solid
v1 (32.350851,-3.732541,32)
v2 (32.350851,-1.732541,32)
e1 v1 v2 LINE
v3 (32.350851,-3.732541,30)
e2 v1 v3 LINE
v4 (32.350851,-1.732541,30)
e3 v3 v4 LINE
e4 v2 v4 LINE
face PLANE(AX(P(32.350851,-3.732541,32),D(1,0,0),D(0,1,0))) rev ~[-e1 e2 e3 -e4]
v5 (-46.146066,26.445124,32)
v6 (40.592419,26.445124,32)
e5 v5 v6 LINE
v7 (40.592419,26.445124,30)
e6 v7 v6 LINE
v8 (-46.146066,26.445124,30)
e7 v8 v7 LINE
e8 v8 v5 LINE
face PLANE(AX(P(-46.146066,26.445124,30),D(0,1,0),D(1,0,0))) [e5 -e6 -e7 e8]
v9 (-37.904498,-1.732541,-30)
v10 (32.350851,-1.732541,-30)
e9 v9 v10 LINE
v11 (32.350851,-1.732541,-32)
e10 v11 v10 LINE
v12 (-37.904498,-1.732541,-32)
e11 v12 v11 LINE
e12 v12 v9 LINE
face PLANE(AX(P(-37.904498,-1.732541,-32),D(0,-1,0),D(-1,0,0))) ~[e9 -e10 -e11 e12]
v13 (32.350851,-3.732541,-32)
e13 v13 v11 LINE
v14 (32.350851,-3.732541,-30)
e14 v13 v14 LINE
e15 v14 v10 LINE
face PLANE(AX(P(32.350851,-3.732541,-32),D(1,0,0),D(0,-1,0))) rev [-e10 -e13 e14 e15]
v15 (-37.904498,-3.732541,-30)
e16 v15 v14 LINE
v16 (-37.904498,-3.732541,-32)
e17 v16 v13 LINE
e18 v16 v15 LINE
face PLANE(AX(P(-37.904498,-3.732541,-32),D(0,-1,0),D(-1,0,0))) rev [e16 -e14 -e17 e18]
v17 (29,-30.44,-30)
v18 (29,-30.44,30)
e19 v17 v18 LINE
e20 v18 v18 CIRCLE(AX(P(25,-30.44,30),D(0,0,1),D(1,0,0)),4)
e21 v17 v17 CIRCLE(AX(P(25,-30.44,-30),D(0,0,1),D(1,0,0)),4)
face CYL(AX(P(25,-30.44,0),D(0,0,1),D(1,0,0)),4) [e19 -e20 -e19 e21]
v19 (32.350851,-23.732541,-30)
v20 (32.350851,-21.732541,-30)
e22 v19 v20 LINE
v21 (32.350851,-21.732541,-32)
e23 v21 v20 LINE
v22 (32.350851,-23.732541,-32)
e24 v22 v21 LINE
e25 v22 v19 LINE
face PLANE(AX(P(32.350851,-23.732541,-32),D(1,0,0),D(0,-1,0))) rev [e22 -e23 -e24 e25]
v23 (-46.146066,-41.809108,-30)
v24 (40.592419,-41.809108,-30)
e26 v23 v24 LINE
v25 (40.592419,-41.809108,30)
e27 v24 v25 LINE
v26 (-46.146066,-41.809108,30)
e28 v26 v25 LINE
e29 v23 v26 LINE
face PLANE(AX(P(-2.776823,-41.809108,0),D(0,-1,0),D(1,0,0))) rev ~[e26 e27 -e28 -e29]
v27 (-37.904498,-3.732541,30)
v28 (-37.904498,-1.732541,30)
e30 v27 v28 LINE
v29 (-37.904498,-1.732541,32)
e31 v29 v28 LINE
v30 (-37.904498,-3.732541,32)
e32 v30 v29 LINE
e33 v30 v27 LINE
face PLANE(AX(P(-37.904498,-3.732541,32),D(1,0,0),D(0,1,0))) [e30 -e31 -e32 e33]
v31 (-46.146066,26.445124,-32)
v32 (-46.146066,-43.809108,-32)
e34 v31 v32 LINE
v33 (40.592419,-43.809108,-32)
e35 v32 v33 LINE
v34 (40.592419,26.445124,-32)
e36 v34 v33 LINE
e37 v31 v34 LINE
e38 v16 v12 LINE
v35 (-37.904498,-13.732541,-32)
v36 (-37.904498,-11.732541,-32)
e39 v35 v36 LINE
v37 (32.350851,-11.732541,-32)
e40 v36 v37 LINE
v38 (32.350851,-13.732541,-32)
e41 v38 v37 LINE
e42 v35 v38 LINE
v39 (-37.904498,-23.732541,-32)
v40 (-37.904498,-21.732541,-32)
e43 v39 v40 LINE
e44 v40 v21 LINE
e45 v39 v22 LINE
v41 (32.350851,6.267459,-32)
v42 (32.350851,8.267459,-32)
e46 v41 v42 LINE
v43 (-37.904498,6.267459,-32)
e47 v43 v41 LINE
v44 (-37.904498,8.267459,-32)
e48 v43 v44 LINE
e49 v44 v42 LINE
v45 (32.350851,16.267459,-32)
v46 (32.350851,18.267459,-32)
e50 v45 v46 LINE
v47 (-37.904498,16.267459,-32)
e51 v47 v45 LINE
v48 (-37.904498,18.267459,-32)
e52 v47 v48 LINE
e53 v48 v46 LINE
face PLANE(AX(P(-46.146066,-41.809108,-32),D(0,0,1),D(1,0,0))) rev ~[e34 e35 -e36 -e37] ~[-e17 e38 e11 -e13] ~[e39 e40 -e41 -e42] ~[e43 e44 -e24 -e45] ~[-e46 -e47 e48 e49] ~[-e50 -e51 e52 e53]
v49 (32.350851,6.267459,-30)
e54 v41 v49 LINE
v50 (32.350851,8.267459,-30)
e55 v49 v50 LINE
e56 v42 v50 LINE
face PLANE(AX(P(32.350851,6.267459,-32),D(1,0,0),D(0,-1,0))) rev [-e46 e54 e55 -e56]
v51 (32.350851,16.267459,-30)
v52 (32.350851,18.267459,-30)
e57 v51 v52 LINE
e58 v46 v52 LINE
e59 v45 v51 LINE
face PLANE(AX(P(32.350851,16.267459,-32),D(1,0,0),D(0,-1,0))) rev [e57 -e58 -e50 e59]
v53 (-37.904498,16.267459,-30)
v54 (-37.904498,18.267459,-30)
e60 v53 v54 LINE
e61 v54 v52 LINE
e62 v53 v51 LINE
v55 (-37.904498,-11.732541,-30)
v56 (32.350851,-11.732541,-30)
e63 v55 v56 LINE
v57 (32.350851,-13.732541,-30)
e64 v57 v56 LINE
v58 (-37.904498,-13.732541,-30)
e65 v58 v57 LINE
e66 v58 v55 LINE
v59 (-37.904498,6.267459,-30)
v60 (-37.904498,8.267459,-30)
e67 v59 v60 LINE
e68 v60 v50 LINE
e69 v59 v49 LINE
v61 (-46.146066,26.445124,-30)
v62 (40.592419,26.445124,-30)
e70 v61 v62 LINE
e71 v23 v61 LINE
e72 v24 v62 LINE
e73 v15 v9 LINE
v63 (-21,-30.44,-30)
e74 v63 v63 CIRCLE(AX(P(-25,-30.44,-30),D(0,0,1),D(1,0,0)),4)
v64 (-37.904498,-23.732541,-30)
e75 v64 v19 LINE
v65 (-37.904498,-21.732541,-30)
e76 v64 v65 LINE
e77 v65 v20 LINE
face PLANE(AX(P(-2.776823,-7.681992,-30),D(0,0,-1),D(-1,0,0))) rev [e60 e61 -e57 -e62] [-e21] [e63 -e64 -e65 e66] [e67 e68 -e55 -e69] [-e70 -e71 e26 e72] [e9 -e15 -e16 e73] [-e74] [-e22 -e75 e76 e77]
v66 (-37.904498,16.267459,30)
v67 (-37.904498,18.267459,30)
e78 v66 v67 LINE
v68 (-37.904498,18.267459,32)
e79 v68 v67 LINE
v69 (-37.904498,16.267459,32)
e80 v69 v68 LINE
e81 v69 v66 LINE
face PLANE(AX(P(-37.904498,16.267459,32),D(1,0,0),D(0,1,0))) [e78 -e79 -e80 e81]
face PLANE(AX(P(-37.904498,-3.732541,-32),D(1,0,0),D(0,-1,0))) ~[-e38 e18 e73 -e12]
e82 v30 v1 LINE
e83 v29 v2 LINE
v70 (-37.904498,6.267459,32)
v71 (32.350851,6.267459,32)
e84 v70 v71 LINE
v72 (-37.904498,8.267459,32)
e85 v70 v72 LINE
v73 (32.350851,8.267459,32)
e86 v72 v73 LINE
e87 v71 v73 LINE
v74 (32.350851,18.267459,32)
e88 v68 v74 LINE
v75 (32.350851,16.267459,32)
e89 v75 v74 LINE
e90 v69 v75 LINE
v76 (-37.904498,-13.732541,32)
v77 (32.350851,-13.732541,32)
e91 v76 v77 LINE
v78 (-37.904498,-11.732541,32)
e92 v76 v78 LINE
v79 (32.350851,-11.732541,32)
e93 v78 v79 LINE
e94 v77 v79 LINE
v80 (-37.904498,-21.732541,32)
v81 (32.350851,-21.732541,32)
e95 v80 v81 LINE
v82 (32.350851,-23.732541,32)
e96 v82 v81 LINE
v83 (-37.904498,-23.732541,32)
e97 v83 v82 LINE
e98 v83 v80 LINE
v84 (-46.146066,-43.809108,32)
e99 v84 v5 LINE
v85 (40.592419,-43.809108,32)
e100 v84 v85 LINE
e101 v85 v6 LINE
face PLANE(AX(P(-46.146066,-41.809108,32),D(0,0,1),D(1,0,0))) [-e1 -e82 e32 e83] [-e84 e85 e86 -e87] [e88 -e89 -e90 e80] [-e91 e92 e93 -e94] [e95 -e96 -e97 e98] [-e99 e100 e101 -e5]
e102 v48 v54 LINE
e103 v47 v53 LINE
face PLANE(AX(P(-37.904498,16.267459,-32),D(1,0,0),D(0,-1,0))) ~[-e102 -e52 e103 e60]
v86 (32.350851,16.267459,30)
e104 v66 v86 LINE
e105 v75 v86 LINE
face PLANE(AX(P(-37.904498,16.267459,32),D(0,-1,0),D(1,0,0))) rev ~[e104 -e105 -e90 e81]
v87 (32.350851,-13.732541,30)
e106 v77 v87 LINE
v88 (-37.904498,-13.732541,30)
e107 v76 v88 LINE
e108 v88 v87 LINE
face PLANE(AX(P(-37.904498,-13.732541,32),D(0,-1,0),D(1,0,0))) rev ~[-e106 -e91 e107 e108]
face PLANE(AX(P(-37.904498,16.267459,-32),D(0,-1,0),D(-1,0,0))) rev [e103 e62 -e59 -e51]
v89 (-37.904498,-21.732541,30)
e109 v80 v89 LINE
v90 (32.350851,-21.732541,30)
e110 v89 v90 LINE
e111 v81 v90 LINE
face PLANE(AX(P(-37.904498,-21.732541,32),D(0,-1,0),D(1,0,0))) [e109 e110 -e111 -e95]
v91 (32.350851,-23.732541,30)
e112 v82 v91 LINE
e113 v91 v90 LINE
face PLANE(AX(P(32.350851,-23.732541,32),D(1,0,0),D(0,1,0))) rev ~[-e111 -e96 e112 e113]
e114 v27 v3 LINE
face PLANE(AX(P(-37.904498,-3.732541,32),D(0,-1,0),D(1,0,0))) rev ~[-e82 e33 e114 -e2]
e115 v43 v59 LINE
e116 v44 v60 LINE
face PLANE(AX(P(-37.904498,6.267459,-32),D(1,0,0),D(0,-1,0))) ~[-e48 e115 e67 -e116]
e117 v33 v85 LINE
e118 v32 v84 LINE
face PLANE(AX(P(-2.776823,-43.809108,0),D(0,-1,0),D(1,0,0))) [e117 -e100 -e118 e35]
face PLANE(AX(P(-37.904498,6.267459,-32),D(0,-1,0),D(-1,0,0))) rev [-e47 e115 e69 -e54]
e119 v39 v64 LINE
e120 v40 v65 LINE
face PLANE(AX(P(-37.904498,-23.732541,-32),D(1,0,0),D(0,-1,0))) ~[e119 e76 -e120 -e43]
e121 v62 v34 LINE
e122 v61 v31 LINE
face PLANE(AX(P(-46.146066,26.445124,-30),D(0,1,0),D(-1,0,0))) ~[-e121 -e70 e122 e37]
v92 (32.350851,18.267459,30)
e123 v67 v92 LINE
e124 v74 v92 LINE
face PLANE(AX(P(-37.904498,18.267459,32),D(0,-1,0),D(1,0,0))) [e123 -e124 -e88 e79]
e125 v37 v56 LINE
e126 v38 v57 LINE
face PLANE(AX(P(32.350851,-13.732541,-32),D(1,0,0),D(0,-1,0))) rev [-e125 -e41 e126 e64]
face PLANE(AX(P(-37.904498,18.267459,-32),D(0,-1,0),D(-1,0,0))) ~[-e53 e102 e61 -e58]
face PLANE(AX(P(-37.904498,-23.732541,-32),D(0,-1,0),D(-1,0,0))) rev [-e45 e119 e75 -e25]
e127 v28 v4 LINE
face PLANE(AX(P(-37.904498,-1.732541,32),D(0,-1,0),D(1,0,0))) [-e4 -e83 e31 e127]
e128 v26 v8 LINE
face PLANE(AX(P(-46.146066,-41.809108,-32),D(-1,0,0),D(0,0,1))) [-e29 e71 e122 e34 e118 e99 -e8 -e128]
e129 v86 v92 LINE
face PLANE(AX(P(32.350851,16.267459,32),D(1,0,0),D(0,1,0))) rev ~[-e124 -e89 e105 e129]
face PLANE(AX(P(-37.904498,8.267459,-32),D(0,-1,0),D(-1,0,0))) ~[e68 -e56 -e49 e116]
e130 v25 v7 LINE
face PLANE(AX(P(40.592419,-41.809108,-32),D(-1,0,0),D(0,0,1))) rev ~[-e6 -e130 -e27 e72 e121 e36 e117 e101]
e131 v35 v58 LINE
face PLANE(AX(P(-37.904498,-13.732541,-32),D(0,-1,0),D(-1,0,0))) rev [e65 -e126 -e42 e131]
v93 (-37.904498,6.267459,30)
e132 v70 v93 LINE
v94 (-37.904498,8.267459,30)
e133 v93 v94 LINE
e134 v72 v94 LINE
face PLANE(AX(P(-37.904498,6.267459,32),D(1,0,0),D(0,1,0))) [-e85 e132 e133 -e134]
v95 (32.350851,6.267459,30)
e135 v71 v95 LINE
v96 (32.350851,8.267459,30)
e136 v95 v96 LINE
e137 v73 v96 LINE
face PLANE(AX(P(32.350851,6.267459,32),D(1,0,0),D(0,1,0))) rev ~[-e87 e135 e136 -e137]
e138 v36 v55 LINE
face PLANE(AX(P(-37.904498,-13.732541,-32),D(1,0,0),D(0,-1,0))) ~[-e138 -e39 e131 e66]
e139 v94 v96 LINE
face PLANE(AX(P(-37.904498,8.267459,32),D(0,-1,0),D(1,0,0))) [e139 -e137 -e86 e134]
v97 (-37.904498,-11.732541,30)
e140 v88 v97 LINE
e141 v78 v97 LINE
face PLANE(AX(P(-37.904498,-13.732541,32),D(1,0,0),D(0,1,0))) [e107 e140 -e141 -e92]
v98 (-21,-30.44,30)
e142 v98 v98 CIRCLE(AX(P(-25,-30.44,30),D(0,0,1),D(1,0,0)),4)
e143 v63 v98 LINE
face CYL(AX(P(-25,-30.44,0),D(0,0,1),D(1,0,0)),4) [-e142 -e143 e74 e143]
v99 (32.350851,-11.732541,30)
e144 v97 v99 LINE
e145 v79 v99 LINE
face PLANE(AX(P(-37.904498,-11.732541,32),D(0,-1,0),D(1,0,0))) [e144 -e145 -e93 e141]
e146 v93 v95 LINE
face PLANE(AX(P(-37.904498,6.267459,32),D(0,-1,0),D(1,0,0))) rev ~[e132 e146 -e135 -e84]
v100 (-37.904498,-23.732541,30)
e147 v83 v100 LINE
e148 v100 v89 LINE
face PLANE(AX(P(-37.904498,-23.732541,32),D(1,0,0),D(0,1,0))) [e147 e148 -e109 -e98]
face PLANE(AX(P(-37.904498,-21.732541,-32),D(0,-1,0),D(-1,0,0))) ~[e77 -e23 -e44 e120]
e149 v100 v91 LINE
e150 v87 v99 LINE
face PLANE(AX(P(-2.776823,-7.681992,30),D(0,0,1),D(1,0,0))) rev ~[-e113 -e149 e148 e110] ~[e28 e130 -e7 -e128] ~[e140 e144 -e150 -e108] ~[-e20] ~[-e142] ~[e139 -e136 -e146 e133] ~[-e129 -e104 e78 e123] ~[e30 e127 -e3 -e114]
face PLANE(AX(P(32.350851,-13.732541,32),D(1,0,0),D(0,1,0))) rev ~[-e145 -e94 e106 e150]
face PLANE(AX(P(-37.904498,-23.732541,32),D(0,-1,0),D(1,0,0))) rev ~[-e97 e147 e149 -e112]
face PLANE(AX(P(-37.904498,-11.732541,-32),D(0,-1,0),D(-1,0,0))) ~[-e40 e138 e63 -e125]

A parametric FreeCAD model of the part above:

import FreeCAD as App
import Part
import Sketcher
from FreeCAD import Vector
Q = App.Units.Quantity

doc = App.newDocument("Part")
params = doc.addObject("Spreadsheet::Sheet", "Params")
for row, (alias, value) in enumerate([
    ("sketch1_diameter", "8 mm"),
    ("pad1_length", "60 mm"),
    ("sketch2_diameter", "8 mm"),
    ("pad2_length", "60 mm"),
    ("pad3_length", "2 mm"),
    ("sketch4_height", "2 mm"),
    ("pocket1_length", "2 mm"),
    ("sketch5_height", "64 mm"),
    ("pad4_length", "2 mm"),
], start=1):
    params.set(f"A{row}", alias)
    params.set(f"B{row}", "=" + value)
    params.setAlias(f"B{row}", alias)

body = doc.addObject("PartDesign::Body", "Body")

# Sketch on XY plane
sketch1 = body.newObject("Sketcher::SketchObject", "Sketch")
sketch1.AttachmentSupport = (doc.getObject("XY_Plane"), [""])
sketch1.MapMode = "FlatFace"
sketch1.addGeometry(Part.Circle(Vector(-25, -30.4, 0), Vector(0, 0, 1), 4), False)
sketch1.addConstraint(Sketcher.Constraint("Diameter", 0, Q("8 mm")))
sketch1.addConstraint(Sketcher.Constraint("DistanceX", 0, 3, -1, 1, Q("25 mm")))
sketch1.addConstraint(Sketcher.Constraint("DistanceY", 0, 3, -1, 1, Q("30.44 mm")))
sketch1.setExpression("Constraints[0]", "Params.sketch1_diameter")
pad1 = body.newObject("PartDesign::Pad", "Pad")
pad1.Profile = sketch1
pad1.setExpression("Length", "Params.pad1_length")
pad1.Midplane = True
body2 = doc.addObject("PartDesign::Body", "Body001")

# Sketch on XY plane
sketch2 = body2.newObject("Sketcher::SketchObject", "Sketch001")
sketch2.AttachmentSupport = (doc.getObject("XY_Plane001"), [""])
sketch2.MapMode = "FlatFace"
sketch2.addGeometry(Part.Circle(Vector(25, -30.4, 0), Vector(0, 0, 1), 4), False)
sketch2.addConstraint(Sketcher.Constraint("Diameter", 0, Q("8 mm")))
sketch2.addConstraint(Sketcher.Constraint("DistanceX", -1, 1, 0, 3, Q("25 mm")))
sketch2.addConstraint(Sketcher.Constraint("DistanceY", 0, 3, -1, 1, Q("30.44 mm")))
sketch2.setExpression("Constraints[0]", "Params.sketch2_diameter")
pad2 = body2.newObject("PartDesign::Pad", "Pad001")
pad2.Profile = sketch2
pad2.setExpression("Length", "Params.pad2_length")
pad2.Midplane = True
body.AllowCompound = True
doc.recompute()

boolean = body.newObject("PartDesign::Boolean", "Boolean")
boolean.Type = "Fuse"
boolean.addObjects([body2])

# Sketch on XY plane
sketch3 = body.newObject("Sketcher::SketchObject", "Sketch002")
sketch3.AttachmentSupport = (doc.getObject("XY_Plane"), [""])
sketch3.MapMode = "FlatFace"
sketch3.AttachmentOffset = App.Placement(Vector(0, 0, 30), App.Rotation())
sketch3.addGeometry(Part.LineSegment(Vector(-46, 26, 0), Vector(-46, -42, 0)), False)
sketch3.addGeometry(Part.LineSegment(Vector(-46, -42, 0), Vector(41, -42, 0)), False)
sketch3.addGeometry(Part.LineSegment(Vector(41, -42, 0), Vector(41, 26, 0)), False)
sketch3.addGeometry(Part.LineSegment(Vector(41, 26, 0), Vector(-46, 26, 0)), False)
sketch3.addConstraint(Sketcher.Constraint("Coincident", 0, 2, 1, 1))
sketch3.addConstraint(Sketcher.Constraint("Coincident", 1, 2, 2, 1))
sketch3.addConstraint(Sketcher.Constraint("Coincident", 2, 2, 3, 1))
sketch3.addConstraint(Sketcher.Constraint("Coincident", 3, 2, 0, 1))
sketch3.addConstraint(Sketcher.Constraint("Vertical", 0))
sketch3.addConstraint(Sketcher.Constraint("Horizontal", 1))
sketch3.addConstraint(Sketcher.Constraint("Vertical", 2))
sketch3.addConstraint(Sketcher.Constraint("Horizontal", 3))
sketch3.addConstraint(Sketcher.Constraint("DistanceY", 0, 2, 0, 1, Q("68.254232 mm")))
sketch3.addConstraint(Sketcher.Constraint("DistanceX", 1, 1, 1, 2, Q("86.738485 mm")))
sketch3.addConstraint(Sketcher.Constraint("DistanceY", 0, 2, -1, 1, Q("41.809108 mm")))
sketch3.addConstraint(Sketcher.Constraint("DistanceX", -1, 1, 1, 2, Q("40.592419 mm")))
pad3 = body.newObject("PartDesign::Pad", "Pad002")
pad3.Profile = sketch3
pad3.setExpression("Length", "Params.pad3_length")

# Sketch on XY plane
sketch4 = body.newObject("Sketcher::SketchObject", "Sketch003")
sketch4.AttachmentSupport = (doc.getObject("XY_Plane"), [""])
sketch4.MapMode = "FlatFace"
sketch4.AttachmentOffset = App.Placement(Vector(0, 0, 32), App.Rotation())
sketch4.addGeometry(Part.LineSegment(Vector(-37.9, 18.3, 0), Vector(-37.9, 16.3, 0)), False)
sketch4.addGeometry(Part.LineSegment(Vector(-37.9, 16.3, 0), Vector(32.4, 16.3, 0)), False)
sketch4.addGeometry(Part.LineSegment(Vector(32.4, 16.3, 0), Vector(32.4, 18.3, 0)), False)
sketch4.addGeometry(Part.LineSegment(Vector(32.4, 18.3, 0), Vector(-37.9, 18.3, 0)), False)
sketch4.addGeometry(Part.LineSegment(Vector(-37.9, 8.3, 0), Vector(-37.9, 6.3, 0)), False)
sketch4.addGeometry(Part.LineSegment(Vector(-37.9, 6.3, 0), Vector(32.4, 6.3, 0)), False)
sketch4.addGeometry(Part.LineSegment(Vector(32.4, 6.3, 0), Vector(32.4, 8.3, 0)), False)
sketch4.addGeometry(Part.LineSegment(Vector(32.4, 8.3, 0), Vector(-37.9, 8.3, 0)), False)
sketch4.addGeometry(Part.LineSegment(Vector(-37.9, -1.7, 0), Vector(-37.9, -3.7, 0)), False)
sketch4.addGeometry(Part.LineSegment(Vector(-37.9, -3.7, 0), Vector(32.4, -3.7, 0)), False)
sketch4.addGeometry(Part.LineSegment(Vector(32.4, -3.7, 0), Vector(32.4, -1.7, 0)), False)
sketch4.addGeometry(Part.LineSegment(Vector(32.4, -1.7, 0), Vector(-37.9, -1.7, 0)), False)
sketch4.addGeometry(Part.LineSegment(Vector(-37.9, -11.7, 0), Vector(-37.9, -13.7, 0)), False)
sketch4.addGeometry(Part.LineSegment(Vector(-37.9, -13.7, 0), Vector(32.4, -13.7, 0)), False)
sketch4.addGeometry(Part.LineSegment(Vector(32.4, -13.7, 0), Vector(32.4, -11.7, 0)), False)
sketch4.addGeometry(Part.LineSegment(Vector(32.4, -11.7, 0), Vector(-37.9, -11.7, 0)), False)
sketch4.addGeometry(Part.LineSegment(Vector(-37.9, -21.7, 0), Vector(-37.9, -23.7, 0)), False)
sketch4.addGeometry(Part.LineSegment(Vector(-37.9, -23.7, 0), Vector(32.4, -23.7, 0)), False)
sketch4.addGeometry(Part.LineSegment(Vector(32.4, -23.7, 0), Vector(32.4, -21.7, 0)), False)
sketch4.addGeometry(Part.LineSegment(Vector(32.4, -21.7, 0), Vector(-37.9, -21.7, 0)), False)
sketch4.addConstraint(Sketcher.Constraint("Coincident", 0, 2, 1, 1))
sketch4.addConstraint(Sketcher.Constraint("Coincident", 1, 2, 2, 1))
sketch4.addConstraint(Sketcher.Constraint("Coincident", 2, 2, 3, 1))
sketch4.addConstraint(Sketcher.Constraint("Coincident", 3, 2, 0, 1))
sketch4.addConstraint(Sketcher.Constraint("Coincident", 4, 2, 5, 1))
sketch4.addConstraint(Sketcher.Constraint("Coincident", 5, 2, 6, 1))
sketch4.addConstraint(Sketcher.Constraint("Coincident", 6, 2, 7, 1))
sketch4.addConstraint(Sketcher.Constraint("Coincident", 7, 2, 4, 1))
sketch4.addConstraint(Sketcher.Constraint("Coincident", 8, 2, 9, 1))
sketch4.addConstraint(Sketcher.Constraint("Coincident", 9, 2, 10, 1))
sketch4.addConstraint(Sketcher.Constraint("Coincident", 10, 2, 11, 1))
sketch4.addConstraint(Sketcher.Constraint("Coincident", 11, 2, 8, 1))
sketch4.addConstraint(Sketcher.Constraint("Coincident", 12, 2, 13, 1))
sketch4.addConstraint(Sketcher.Constraint("Coincident", 13, 2, 14, 1))
sketch4.addConstraint(Sketcher.Constraint("Coincident", 14, 2, 15, 1))
sketch4.addConstraint(Sketcher.Constraint("Coincident", 15, 2, 12, 1))
sketch4.addConstraint(Sketcher.Constraint("Coincident", 16, 2, 17, 1))
sketch4.addConstraint(Sketcher.Constraint("Coincident", 17, 2, 18, 1))
sketch4.addConstraint(Sketcher.Constraint("Coincident", 18, 2, 19, 1))
sketch4.addConstraint(Sketcher.Constraint("Coincident", 19, 2, 16, 1))
sketch4.addConstraint(Sketcher.Constraint("Vertical", 0))
sketch4.addConstraint(Sketcher.Constraint("Horizontal", 1))
sketch4.addConstraint(Sketcher.Constraint("Vertical", 2))
sketch4.addConstraint(Sketcher.Constraint("Horizontal", 3))
sketch4.addConstraint(Sketcher.Constraint("Vertical", 4))
sketch4.addConstraint(Sketcher.Constraint("Horizontal", 5))
sketch4.addConstraint(Sketcher.Constraint("Vertical", 6))
sketch4.addConstraint(Sketcher.Constraint("Horizontal", 7))
sketch4.addConstraint(Sketcher.Constraint("Vertical", 8))
sketch4.addConstraint(Sketcher.Constraint("Horizontal", 9))
sketch4.addConstraint(Sketcher.Constraint("Vertical", 10))
sketch4.addConstraint(Sketcher.Constraint("Horizontal", 11))
sketch4.addConstraint(Sketcher.Constraint("Vertical", 12))
sketch4.addConstraint(Sketcher.Constraint("Horizontal", 13))
sketch4.addConstraint(Sketcher.Constraint("Vertical", 14))
sketch4.addConstraint(Sketcher.Constraint("Horizontal", 15))
sketch4.addConstraint(Sketcher.Constraint("Vertical", 16))
sketch4.addConstraint(Sketcher.Constraint("Horizontal", 17))
sketch4.addConstraint(Sketcher.Constraint("Vertical", 18))
sketch4.addConstraint(Sketcher.Constraint("Horizontal", 19))
sketch4.addConstraint(Sketcher.Constraint("Vertical", 3, 2, 4, 2))
sketch4.addConstraint(Sketcher.Constraint("Vertical", 2, 2, 5, 2))
sketch4.addConstraint(Sketcher.Constraint("Vertical", 7, 2, 8, 2))
sketch4.addConstraint(Sketcher.Constraint("Vertical", 6, 2, 9, 2))
sketch4.addConstraint(Sketcher.Constraint("Vertical", 11, 2, 12, 2))
sketch4.addConstraint(Sketcher.Constraint("Vertical", 10, 2, 13, 2))
sketch4.addConstraint(Sketcher.Constraint("Vertical", 15, 2, 16, 2))
sketch4.addConstraint(Sketcher.Constraint("Vertical", 14, 2, 17, 2))
sketch4.addConstraint(Sketcher.Constraint("Equal", 2, 4))
sketch4.addConstraint(Sketcher.Constraint("Equal", 6, 8))
sketch4.addConstraint(Sketcher.Constraint("Equal", 10, 12))
sketch4.addConstraint(Sketcher.Constraint("Equal", 14, 16))
sketch4.addConstraint(Sketcher.Constraint("DistanceY", 0, 2, 0, 1, Q("2 mm")))
sketch4.addConstraint(Sketcher.Constraint("DistanceY", 4, 2, 0, 2, Q("10 mm")))
sketch4.addConstraint(Sketcher.Constraint("DistanceY", 8, 2, 4, 2, Q("10 mm")))
sketch4.addConstraint(Sketcher.Constraint("DistanceY", 12, 2, 8, 2, Q("10 mm")))
sketch4.addConstraint(Sketcher.Constraint("DistanceY", 16, 2, 12, 2, Q("10 mm")))
sketch4.addConstraint(Sketcher.Constraint("DistanceX", 1, 1, 1, 2, Q("70.255349 mm")))
sketch4.addConstraint(Sketcher.Constraint("DistanceY", -1, 1, 0, 2, Q("16.267459 mm")))
sketch4.addConstraint(Sketcher.Constraint("DistanceX", -1, 1, 1, 2, Q("32.350851 mm")))
sketch4.setExpression("Constraints[52]", "Params.sketch4_height")
pocket1 = body.newObject("PartDesign::Pocket", "Pocket")
pocket1.Profile = sketch4
pocket1.setExpression("Length", "Params.pocket1_length")
doc.recompute()

mirrored = body.newObject("PartDesign::Mirrored", "Mirrored")
mirrored.Originals = [pad3, pocket1]
mirrored.MirrorPlane = (doc.getObject("XY_Plane"), [""])
body.Tip = mirrored

# Sketch on XZ plane
sketch5 = body.newObject("Sketcher::SketchObject", "Sketch004")
sketch5.AttachmentSupport = (doc.getObject("XZ_Plane"), [""])
sketch5.MapMode = "FlatFace"
sketch5.AttachmentOffset = App.Placement(Vector(0, 0, 41.809108), App.Rotation())
sketch5.addGeometry(Part.LineSegment(Vector(-46, 32, 0), Vector(-46, -32, 0)), False)
sketch5.addGeometry(Part.LineSegment(Vector(-46, -32, 0), Vector(41, -32, 0)), False)
sketch5.addGeometry(Part.LineSegment(Vector(41, -32, 0), Vector(41, 32, 0)), False)
sketch5.addGeometry(Part.LineSegment(Vector(41, 32, 0), Vector(-46, 32, 0)), False)
sketch5.addConstraint(Sketcher.Constraint("Coincident", 0, 2, 1, 1))
sketch5.addConstraint(Sketcher.Constraint("Coincident", 1, 2, 2, 1))
sketch5.addConstraint(Sketcher.Constraint("Coincident", 2, 2, 3, 1))
sketch5.addConstraint(Sketcher.Constraint("Coincident", 3, 2, 0, 1))
sketch5.addConstraint(Sketcher.Constraint("Vertical", 0))
sketch5.addConstraint(Sketcher.Constraint("Horizontal", 1))
sketch5.addConstraint(Sketcher.Constraint("Vertical", 2))
sketch5.addConstraint(Sketcher.Constraint("Horizontal", 3))
sketch5.addConstraint(Sketcher.Constraint("DistanceY", 0, 2, 0, 1, Q("64 mm")))
sketch5.addConstraint(Sketcher.Constraint("DistanceY", 0, 2, -1, 1, Q("32 mm")))
sketch5.addConstraint(Sketcher.Constraint("DistanceX", 1, 1, 1, 2, Q("86.738485 mm")))
sketch5.addConstraint(Sketcher.Constraint("DistanceX", -1, 1, 1, 2, Q("40.592419 mm")))
sketch5.setExpression("Constraints[8]", "Params.sketch5_height")
pad4 = body.newObject("PartDesign::Pad", "Pad003")
pad4.Profile = sketch5
pad4.setExpression("Length", "Params.pad4_length")

doc.recompute()
